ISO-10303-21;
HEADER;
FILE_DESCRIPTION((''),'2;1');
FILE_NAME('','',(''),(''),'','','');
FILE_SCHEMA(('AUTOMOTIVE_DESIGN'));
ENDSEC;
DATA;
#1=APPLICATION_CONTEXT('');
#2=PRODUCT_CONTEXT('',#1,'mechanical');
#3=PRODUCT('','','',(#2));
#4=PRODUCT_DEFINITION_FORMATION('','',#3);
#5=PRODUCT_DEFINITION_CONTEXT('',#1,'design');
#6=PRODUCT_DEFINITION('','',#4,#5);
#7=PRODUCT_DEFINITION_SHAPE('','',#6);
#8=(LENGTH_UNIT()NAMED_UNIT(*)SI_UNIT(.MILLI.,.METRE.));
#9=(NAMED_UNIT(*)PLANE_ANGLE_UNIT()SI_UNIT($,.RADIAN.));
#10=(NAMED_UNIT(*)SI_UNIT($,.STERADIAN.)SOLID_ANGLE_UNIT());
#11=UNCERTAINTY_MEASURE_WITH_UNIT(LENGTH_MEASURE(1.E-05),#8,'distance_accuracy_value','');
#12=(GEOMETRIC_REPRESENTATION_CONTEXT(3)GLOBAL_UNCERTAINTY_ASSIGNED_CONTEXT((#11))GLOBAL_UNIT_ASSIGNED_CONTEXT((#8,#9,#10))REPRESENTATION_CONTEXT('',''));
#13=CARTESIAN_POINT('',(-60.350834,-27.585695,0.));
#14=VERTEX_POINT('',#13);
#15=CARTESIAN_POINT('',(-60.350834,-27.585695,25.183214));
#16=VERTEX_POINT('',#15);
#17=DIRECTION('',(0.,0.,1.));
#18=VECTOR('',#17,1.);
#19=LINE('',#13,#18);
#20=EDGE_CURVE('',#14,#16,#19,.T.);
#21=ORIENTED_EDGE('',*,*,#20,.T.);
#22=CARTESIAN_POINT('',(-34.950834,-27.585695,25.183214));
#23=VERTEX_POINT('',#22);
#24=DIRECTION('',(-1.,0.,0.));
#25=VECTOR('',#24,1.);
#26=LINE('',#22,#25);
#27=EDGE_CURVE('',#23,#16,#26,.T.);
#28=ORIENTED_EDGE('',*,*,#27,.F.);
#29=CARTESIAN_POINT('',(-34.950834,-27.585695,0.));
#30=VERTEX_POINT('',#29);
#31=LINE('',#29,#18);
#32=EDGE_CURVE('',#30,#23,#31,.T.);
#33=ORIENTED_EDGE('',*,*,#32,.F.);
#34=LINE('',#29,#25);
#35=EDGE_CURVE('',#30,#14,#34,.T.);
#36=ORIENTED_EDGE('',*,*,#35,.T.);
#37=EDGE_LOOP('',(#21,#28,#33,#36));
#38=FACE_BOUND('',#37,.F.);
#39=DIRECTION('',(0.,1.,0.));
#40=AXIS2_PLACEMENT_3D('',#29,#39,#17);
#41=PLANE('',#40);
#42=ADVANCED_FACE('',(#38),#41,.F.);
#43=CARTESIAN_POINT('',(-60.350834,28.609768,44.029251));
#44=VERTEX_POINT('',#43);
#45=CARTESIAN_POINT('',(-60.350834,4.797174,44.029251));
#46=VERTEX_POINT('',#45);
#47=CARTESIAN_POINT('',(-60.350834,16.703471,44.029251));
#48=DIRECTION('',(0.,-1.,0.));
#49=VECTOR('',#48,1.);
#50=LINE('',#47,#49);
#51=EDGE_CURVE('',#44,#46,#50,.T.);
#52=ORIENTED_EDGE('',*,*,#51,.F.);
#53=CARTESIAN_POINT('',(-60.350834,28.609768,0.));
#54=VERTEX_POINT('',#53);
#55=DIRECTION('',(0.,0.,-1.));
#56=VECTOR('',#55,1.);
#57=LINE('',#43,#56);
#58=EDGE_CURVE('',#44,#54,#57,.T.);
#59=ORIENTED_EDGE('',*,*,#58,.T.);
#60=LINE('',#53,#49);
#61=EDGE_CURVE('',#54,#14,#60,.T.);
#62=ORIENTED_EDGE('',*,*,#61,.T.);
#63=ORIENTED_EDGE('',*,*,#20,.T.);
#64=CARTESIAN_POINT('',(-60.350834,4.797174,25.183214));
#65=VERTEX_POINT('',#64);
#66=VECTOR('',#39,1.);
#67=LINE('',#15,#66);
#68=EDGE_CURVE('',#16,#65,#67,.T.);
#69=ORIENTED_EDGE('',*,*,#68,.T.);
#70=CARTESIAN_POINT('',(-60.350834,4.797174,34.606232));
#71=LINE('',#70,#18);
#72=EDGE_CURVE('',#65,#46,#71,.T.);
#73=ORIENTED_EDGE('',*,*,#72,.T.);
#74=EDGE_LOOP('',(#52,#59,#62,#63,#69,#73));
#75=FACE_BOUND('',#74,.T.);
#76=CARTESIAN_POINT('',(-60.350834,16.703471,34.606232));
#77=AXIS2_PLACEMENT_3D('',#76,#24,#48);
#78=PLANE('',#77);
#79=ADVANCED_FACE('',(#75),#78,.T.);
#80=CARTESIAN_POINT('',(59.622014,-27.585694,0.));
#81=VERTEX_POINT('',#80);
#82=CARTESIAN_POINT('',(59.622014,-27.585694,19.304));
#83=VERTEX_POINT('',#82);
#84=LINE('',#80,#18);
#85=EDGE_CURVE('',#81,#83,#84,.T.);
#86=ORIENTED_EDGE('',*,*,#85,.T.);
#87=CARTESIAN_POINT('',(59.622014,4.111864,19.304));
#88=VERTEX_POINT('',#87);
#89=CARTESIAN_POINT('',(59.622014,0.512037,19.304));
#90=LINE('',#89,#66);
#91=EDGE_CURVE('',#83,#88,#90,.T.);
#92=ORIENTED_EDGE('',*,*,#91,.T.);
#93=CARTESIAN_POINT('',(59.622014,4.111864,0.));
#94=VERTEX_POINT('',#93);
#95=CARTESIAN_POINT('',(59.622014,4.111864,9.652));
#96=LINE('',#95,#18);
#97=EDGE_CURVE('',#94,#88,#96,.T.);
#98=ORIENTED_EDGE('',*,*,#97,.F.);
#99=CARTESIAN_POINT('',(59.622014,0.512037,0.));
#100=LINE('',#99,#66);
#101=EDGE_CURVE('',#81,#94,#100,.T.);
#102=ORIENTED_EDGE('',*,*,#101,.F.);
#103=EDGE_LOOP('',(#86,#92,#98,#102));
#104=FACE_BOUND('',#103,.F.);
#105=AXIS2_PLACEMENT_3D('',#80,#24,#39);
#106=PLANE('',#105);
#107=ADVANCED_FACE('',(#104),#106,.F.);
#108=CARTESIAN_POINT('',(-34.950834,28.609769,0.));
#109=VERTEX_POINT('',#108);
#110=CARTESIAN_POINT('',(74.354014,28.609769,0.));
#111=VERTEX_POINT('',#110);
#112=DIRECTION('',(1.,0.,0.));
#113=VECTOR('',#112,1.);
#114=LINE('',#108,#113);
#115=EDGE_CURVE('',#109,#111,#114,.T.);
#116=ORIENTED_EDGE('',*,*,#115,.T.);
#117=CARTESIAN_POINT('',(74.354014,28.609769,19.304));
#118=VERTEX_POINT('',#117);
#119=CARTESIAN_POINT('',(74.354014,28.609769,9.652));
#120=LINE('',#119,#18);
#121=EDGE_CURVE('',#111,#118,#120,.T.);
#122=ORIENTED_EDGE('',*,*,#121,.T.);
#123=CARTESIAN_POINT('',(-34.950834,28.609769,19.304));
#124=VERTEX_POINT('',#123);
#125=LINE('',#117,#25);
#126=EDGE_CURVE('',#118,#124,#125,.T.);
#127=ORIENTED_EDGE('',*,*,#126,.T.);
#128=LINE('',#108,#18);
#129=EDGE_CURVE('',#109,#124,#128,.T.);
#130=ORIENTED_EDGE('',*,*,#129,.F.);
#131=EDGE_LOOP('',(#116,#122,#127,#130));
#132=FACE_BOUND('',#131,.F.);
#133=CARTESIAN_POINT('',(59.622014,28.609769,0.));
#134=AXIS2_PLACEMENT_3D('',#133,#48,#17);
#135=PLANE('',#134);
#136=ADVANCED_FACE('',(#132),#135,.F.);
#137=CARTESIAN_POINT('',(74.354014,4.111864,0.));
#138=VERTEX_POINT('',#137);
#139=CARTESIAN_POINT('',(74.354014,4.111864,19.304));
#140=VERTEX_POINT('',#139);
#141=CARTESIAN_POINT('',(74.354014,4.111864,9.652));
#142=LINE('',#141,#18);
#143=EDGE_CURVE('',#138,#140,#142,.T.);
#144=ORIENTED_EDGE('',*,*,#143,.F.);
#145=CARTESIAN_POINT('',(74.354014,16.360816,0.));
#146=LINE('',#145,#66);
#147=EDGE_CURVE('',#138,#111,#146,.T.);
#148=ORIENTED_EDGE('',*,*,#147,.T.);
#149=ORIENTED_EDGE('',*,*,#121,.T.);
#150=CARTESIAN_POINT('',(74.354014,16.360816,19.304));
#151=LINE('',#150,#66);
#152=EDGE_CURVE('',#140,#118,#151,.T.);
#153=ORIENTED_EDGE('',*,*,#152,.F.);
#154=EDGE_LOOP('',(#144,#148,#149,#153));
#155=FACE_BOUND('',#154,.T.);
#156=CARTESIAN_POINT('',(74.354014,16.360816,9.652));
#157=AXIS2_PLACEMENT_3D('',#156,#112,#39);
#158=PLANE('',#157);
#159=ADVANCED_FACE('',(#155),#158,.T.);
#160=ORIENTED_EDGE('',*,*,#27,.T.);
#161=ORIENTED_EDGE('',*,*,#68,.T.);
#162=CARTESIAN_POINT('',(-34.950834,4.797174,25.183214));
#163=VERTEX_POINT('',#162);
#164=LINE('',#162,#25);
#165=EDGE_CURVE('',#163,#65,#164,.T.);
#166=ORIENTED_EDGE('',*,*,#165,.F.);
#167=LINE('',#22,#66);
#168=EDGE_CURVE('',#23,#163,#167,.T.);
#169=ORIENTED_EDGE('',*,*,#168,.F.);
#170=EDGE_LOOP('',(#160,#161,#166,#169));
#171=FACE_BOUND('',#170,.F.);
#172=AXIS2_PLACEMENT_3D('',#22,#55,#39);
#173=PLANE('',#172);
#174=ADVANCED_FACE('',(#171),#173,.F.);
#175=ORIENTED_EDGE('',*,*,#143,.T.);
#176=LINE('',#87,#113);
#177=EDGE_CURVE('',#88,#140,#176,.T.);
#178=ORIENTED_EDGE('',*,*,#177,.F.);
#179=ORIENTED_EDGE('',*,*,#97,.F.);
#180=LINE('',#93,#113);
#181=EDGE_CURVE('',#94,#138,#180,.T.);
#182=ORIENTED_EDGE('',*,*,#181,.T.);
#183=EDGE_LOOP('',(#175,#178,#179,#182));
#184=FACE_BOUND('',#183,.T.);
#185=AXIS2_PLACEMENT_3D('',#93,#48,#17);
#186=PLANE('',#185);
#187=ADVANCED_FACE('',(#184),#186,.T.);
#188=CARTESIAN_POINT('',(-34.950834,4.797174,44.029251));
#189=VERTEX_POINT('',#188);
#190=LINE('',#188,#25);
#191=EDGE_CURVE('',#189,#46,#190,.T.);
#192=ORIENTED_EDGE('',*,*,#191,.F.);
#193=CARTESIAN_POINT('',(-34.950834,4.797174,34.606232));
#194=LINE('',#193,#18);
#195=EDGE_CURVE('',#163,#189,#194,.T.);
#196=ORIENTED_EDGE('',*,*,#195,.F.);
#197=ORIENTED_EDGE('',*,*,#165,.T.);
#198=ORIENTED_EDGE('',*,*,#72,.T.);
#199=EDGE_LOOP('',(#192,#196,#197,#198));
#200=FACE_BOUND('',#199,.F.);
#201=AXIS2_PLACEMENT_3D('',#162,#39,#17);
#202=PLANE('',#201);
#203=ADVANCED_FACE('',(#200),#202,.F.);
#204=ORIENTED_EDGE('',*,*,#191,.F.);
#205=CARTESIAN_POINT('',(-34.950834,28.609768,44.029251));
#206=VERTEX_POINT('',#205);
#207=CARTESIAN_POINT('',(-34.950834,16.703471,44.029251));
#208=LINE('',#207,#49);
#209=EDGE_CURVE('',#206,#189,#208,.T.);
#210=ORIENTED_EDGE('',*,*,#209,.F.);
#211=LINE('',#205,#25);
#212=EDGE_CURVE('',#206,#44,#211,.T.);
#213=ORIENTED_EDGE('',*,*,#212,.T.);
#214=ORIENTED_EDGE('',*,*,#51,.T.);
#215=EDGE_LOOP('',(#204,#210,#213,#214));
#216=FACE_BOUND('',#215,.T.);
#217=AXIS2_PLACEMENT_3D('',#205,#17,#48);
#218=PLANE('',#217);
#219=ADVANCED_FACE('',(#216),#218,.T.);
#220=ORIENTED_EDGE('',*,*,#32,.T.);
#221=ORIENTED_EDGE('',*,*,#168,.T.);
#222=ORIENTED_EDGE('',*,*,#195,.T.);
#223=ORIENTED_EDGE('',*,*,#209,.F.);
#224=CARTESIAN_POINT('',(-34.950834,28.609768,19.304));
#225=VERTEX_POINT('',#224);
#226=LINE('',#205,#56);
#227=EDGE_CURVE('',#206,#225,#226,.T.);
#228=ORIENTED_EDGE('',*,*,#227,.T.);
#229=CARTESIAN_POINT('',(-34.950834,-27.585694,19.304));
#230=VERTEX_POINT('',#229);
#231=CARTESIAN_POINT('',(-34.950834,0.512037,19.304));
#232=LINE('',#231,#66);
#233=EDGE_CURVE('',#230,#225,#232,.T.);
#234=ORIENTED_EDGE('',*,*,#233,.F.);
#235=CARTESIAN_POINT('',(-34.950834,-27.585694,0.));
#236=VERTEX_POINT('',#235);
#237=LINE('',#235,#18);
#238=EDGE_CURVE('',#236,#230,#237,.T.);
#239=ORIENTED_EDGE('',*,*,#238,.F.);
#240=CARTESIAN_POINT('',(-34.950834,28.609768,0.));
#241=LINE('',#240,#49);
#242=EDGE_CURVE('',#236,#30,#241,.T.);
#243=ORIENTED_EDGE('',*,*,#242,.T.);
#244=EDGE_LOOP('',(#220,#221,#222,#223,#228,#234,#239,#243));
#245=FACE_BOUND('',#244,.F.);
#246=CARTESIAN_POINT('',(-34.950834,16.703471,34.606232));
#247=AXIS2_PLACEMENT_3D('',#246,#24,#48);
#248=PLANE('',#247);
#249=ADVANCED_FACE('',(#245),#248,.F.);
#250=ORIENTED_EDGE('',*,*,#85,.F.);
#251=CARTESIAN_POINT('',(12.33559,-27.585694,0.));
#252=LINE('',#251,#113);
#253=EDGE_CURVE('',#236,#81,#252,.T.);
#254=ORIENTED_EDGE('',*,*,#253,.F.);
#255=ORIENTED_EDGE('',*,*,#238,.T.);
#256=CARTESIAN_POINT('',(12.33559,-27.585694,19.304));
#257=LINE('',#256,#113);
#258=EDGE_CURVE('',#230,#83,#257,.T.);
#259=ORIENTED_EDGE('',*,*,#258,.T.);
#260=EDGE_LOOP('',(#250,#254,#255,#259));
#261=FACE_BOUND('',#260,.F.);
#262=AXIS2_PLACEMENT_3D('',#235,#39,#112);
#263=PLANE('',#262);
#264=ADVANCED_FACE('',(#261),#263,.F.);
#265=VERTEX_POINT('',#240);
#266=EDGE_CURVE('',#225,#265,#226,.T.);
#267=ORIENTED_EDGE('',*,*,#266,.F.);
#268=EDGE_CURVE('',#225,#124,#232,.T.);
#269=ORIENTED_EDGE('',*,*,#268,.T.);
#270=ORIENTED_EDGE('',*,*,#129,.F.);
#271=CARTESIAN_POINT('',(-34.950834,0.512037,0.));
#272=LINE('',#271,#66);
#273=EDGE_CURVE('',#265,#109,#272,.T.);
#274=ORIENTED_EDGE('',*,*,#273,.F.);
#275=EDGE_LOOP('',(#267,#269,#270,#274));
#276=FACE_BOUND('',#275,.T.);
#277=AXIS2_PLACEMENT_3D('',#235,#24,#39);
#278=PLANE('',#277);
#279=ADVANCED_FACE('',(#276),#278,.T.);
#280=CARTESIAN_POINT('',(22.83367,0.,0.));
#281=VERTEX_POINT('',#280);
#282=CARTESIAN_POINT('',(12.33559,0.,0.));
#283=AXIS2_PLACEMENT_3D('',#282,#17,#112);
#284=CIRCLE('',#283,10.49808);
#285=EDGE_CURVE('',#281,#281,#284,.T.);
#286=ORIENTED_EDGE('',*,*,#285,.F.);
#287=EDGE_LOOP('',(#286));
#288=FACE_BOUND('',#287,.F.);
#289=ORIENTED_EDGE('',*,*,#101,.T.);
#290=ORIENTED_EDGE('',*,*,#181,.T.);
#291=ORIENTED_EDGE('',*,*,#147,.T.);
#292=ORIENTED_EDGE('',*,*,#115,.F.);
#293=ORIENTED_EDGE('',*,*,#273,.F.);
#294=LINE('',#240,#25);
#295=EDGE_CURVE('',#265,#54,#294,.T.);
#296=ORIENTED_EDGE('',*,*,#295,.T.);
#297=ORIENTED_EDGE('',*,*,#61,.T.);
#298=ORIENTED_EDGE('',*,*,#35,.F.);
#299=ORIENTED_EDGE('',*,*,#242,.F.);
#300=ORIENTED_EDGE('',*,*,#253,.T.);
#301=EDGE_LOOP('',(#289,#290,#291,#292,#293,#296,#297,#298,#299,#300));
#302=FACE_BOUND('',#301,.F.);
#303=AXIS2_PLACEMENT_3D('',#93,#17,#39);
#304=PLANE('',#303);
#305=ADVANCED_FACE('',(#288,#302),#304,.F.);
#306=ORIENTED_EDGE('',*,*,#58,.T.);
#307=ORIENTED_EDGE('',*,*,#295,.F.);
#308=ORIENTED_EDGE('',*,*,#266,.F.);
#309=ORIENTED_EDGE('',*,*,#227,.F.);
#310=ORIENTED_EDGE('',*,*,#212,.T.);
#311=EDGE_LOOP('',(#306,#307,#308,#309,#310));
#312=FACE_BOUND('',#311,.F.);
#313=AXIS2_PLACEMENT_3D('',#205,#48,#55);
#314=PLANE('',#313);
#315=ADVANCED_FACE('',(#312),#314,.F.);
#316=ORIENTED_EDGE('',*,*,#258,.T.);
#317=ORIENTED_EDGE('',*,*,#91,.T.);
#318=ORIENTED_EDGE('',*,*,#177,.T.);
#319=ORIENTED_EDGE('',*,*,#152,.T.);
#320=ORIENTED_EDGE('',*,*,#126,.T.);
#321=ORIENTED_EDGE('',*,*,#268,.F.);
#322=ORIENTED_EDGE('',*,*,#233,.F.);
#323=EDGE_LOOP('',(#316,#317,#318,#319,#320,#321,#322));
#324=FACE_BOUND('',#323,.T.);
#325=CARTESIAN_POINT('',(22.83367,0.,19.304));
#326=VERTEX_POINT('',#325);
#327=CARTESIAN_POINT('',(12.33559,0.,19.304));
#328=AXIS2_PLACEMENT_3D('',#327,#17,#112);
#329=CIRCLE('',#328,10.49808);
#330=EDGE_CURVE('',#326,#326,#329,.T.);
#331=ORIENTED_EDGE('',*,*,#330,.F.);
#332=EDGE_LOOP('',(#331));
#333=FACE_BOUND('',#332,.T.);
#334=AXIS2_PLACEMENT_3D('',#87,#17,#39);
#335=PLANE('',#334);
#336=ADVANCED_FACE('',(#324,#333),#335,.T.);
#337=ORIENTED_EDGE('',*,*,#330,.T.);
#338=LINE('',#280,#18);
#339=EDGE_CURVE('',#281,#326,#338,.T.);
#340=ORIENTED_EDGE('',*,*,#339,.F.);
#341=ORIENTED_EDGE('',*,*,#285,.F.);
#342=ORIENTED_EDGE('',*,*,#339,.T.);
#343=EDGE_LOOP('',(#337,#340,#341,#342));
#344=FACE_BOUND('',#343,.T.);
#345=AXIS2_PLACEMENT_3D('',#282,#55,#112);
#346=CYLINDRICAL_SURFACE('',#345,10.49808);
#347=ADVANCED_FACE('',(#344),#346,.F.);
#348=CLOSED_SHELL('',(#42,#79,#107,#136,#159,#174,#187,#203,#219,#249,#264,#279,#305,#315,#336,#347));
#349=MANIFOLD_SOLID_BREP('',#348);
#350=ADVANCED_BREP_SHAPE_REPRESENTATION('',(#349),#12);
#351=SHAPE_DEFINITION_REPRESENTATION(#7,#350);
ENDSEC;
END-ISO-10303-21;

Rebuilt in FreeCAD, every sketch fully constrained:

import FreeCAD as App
import Part
import Sketcher
Q = App.Units.Quantity

doc = App.newDocument("Part")
params = doc.addObject("Spreadsheet::Sheet", "Params")
for row, (alias, value) in enumerate([
    ("pad1_length", "0.76 in"),
    ("pad2_length", "1 in"),
    ("sketch3_height", "0.76 in"),
    ("pad3_length", "0.58 in"),
], start=1):
    params.set(f"A{row}", alias)
    params.set(f"B{row}", "=" + value)
    params.setAlias(f"B{row}", alias)

body = doc.addObject("PartDesign::Body", "Body")

sketch1 = body.newObject("Sketcher::SketchObject", "Sketch")
sketch1.AttachmentSupport = (doc.getObject("XY_Plane"), [""])
sketch1.MapMode = "FlatFace"
sketch1.addGeometry(Part.LineSegment(App.Vector(-35, 29, 0), App.Vector(-35, -28, 0)), False)
sketch1.addGeometry(Part.LineSegment(App.Vector(-35, -28, 0), App.Vector(60, -28, 0)), False)
sketch1.addGeometry(Part.LineSegment(App.Vector(60, -28, 0), App.Vector(60, 29, 0)), False)
sketch1.addGeometry(Part.LineSegment(App.Vector(60, 29, 0), App.Vector(-35, 29, 0)), False)
sketch1.addGeometry(Part.Circle(App.Vector(12, 0, 0), App.Vector(0, 0, 1), 10), False)
sketch1.addConstraint(Sketcher.Constraint("Coincident", 0, 2, 1, 1))
sketch1.addConstraint(Sketcher.Constraint("Coincident", 1, 2, 2, 1))
sketch1.addConstraint(Sketcher.Constraint("Coincident", 2, 2, 3, 1))
sketch1.addConstraint(Sketcher.Constraint("Coincident", 3, 2, 0, 1))
sketch1.addConstraint(Sketcher.Constraint("Vertical", 0))
sketch1.addConstraint(Sketcher.Constraint("Horizontal", 1))
sketch1.addConstraint(Sketcher.Constraint("Vertical", 2))
sketch1.addConstraint(Sketcher.Constraint("Horizontal", 3))
sketch1.addConstraint(Sketcher.Constraint("PointOnObject", 4, 3, -1))
sketch1.addConstraint(Sketcher.Constraint("Diameter", 4, Q("20.99616 mm")))
sketch1.addConstraint(Sketcher.Constraint("DistanceX", 1, 1, 1, 2, Q("94.572848 mm")))
sketch1.addConstraint(Sketcher.Constraint("DistanceY", 0, 2, 0, 1, Q("56.195463 mm")))
sketch1.addConstraint(Sketcher.Constraint("DistanceX", -1, 1, 4, 3, Q("12.33559 mm")))
sketch1.addConstraint(Sketcher.Constraint("DistanceY", -1, 1, 2, 2, Q("28.609769 mm")))
sketch1.addConstraint(Sketcher.Constraint("DistanceX", 0, 2, -1, 1, Q("34.950834 mm")))
pad1 = body.newObject("PartDesign::Pad", "Pad")
pad1.Profile = sketch1
pad1.setExpression("Length", "Params.pad1_length")

sketch2 = body.newObject("Sketcher::SketchObject", "Sketch001")
sketch2.AttachmentSupport = (doc.getObject("YZ_Plane"), [""])
sketch2.MapMode = "FlatFace"
sketch2.AttachmentOffset = App.Placement(App.Vector(0, 0, -34.950834), App.Rotation())
sketch2.addGeometry(Part.LineSegment(App.Vector(29, 0, 0), App.Vector(-28, 0, 0)), False)
sketch2.addGeometry(Part.LineSegment(App.Vector(-28, 0, 0), App.Vector(-28, 25, 0)), False)
sketch2.addGeometry(Part.LineSegment(App.Vector(-28, 25, 0), App.Vector(5, 25, 0)), False)
sketch2.addGeometry(Part.LineSegment(App.Vector(5, 25, 0), App.Vector(5, 44, 0)), False)
sketch2.addGeometry(Part.LineSegment(App.Vector(5, 44, 0), App.Vector(29, 44, 0)), False)
sketch2.addGeometry(Part.LineSegment(App.Vector(29, 44, 0), App.Vector(29, 0, 0)), False)
sketch2.addConstraint(Sketcher.Constraint("Coincident", 0, 2, 1, 1))
sketch2.addConstraint(Sketcher.Constraint("Coincident", 1, 2, 2, 1))
sketch2.addConstraint(Sketcher.Constraint("Coincident", 2, 2, 3, 1))
sketch2.addConstraint(Sketcher.Constraint("Coincident", 3, 2, 4, 1))
sketch2.addConstraint(Sketcher.Constraint("Coincident", 4, 2, 5, 1))
sketch2.addConstraint(Sketcher.Constraint("Coincident", 5, 2, 0, 1))
sketch2.addConstraint(Sketcher.Constraint("Horizontal", 0))
sketch2.addConstraint(Sketcher.Constraint("Vertical", 1))
sketch2.addConstraint(Sketcher.Constraint("Horizontal", 2))
sketch2.addConstraint(Sketcher.Constraint("Vertical", 3))
sketch2.addConstraint(Sketcher.Constraint("Horizontal", 4))
sketch2.addConstraint(Sketcher.Constraint("Vertical", 5))
sketch2.addConstraint(Sketcher.Constraint("PointOnObject", 0, 2, -1))
sketch2.addConstraint(Sketcher.Constraint("DistanceX", 2, 1, 2, 2, Q("32.382869 mm")))
sketch2.addConstraint(Sketcher.Constraint("DistanceY", 5, 2, 5, 1, Q("44.029251 mm")))
sketch2.addConstraint(Sketcher.Constraint("DistanceX", 0, 2, 0, 1, Q("56.195463 mm")))
sketch2.addConstraint(Sketcher.Constraint("DistanceY", 1, 1, 1, 2, Q("25.183214 mm")))
sketch2.addConstraint(Sketcher.Constraint("DistanceX", 0, 2, -1, 1, Q("27.585695 mm")))
pad2 = body.newObject("PartDesign::Pad", "Pad001")
pad2.Profile = sketch2
pad2.setExpression("Length", "Params.pad2_length")
pad2.Reversed = True

sketch3 = body.newObject("Sketcher::SketchObject", "Sketch002")
sketch3.AttachmentSupport = (doc.getObject("YZ_Plane"), [""])
sketch3.MapMode = "FlatFace"
sketch3.AttachmentOffset = App.Placement(App.Vector(0, 0, 59.622014), App.Rotation())
sketch3.addGeometry(Part.LineSegment(App.Vector(4, 19, 0), App.Vector(4, 0, 0)), False)
sketch3.addGeometry(Part.LineSegment(App.Vector(4, 0, 0), App.Vector(29, 0, 0)), False)
sketch3.addGeometry(Part.LineSegment(App.Vector(29, 0, 0), App.Vector(29, 19, 0)), False)
sketch3.addGeometry(Part.LineSegment(App.Vector(29, 19, 0), App.Vector(4, 19, 0)), False)
sketch3.addConstraint(Sketcher.Constraint("Coincident", 0, 2, 1, 1))
sketch3.addConstraint(Sketcher.Constraint("Coincident", 1, 2, 2, 1))
sketch3.addConstraint(Sketcher.Constraint("Coincident", 2, 2, 3, 1))
sketch3.addConstraint(Sketcher.Constraint("Coincident", 3, 2, 0, 1))
sketch3.addConstraint(Sketcher.Constraint("Vertical", 0))
sketch3.addConstraint(Sketcher.Constraint("Horizontal", 1))
sketch3.addConstraint(Sketcher.Constraint("Vertical", 2))
sketch3.addConstraint(Sketcher.Constraint("Horizontal", 3))
sketch3.addConstraint(Sketcher.Constraint("PointOnObject", 0, 2, -1))
sketch3.addConstraint(Sketcher.Constraint("DistanceY", 0, 2, 0, 1, Q("0.76 in")))
sketch3.addConstraint(Sketcher.Constraint("DistanceX", 1, 1, 1, 2, Q("24.497905 mm")))
sketch3.addConstraint(Sketcher.Constraint("DistanceX", -1, 1, 1, 2, Q("28.609769 mm")))
sketch3.setExpression("Constraints[9]", "Params.sketch3_height")
pad3 = body.newObject("PartDesign::Pad", "Pad002")
pad3.Profile = sketch3
pad3.setExpression("Length", "Params.pad3_length")

doc.recompute()
